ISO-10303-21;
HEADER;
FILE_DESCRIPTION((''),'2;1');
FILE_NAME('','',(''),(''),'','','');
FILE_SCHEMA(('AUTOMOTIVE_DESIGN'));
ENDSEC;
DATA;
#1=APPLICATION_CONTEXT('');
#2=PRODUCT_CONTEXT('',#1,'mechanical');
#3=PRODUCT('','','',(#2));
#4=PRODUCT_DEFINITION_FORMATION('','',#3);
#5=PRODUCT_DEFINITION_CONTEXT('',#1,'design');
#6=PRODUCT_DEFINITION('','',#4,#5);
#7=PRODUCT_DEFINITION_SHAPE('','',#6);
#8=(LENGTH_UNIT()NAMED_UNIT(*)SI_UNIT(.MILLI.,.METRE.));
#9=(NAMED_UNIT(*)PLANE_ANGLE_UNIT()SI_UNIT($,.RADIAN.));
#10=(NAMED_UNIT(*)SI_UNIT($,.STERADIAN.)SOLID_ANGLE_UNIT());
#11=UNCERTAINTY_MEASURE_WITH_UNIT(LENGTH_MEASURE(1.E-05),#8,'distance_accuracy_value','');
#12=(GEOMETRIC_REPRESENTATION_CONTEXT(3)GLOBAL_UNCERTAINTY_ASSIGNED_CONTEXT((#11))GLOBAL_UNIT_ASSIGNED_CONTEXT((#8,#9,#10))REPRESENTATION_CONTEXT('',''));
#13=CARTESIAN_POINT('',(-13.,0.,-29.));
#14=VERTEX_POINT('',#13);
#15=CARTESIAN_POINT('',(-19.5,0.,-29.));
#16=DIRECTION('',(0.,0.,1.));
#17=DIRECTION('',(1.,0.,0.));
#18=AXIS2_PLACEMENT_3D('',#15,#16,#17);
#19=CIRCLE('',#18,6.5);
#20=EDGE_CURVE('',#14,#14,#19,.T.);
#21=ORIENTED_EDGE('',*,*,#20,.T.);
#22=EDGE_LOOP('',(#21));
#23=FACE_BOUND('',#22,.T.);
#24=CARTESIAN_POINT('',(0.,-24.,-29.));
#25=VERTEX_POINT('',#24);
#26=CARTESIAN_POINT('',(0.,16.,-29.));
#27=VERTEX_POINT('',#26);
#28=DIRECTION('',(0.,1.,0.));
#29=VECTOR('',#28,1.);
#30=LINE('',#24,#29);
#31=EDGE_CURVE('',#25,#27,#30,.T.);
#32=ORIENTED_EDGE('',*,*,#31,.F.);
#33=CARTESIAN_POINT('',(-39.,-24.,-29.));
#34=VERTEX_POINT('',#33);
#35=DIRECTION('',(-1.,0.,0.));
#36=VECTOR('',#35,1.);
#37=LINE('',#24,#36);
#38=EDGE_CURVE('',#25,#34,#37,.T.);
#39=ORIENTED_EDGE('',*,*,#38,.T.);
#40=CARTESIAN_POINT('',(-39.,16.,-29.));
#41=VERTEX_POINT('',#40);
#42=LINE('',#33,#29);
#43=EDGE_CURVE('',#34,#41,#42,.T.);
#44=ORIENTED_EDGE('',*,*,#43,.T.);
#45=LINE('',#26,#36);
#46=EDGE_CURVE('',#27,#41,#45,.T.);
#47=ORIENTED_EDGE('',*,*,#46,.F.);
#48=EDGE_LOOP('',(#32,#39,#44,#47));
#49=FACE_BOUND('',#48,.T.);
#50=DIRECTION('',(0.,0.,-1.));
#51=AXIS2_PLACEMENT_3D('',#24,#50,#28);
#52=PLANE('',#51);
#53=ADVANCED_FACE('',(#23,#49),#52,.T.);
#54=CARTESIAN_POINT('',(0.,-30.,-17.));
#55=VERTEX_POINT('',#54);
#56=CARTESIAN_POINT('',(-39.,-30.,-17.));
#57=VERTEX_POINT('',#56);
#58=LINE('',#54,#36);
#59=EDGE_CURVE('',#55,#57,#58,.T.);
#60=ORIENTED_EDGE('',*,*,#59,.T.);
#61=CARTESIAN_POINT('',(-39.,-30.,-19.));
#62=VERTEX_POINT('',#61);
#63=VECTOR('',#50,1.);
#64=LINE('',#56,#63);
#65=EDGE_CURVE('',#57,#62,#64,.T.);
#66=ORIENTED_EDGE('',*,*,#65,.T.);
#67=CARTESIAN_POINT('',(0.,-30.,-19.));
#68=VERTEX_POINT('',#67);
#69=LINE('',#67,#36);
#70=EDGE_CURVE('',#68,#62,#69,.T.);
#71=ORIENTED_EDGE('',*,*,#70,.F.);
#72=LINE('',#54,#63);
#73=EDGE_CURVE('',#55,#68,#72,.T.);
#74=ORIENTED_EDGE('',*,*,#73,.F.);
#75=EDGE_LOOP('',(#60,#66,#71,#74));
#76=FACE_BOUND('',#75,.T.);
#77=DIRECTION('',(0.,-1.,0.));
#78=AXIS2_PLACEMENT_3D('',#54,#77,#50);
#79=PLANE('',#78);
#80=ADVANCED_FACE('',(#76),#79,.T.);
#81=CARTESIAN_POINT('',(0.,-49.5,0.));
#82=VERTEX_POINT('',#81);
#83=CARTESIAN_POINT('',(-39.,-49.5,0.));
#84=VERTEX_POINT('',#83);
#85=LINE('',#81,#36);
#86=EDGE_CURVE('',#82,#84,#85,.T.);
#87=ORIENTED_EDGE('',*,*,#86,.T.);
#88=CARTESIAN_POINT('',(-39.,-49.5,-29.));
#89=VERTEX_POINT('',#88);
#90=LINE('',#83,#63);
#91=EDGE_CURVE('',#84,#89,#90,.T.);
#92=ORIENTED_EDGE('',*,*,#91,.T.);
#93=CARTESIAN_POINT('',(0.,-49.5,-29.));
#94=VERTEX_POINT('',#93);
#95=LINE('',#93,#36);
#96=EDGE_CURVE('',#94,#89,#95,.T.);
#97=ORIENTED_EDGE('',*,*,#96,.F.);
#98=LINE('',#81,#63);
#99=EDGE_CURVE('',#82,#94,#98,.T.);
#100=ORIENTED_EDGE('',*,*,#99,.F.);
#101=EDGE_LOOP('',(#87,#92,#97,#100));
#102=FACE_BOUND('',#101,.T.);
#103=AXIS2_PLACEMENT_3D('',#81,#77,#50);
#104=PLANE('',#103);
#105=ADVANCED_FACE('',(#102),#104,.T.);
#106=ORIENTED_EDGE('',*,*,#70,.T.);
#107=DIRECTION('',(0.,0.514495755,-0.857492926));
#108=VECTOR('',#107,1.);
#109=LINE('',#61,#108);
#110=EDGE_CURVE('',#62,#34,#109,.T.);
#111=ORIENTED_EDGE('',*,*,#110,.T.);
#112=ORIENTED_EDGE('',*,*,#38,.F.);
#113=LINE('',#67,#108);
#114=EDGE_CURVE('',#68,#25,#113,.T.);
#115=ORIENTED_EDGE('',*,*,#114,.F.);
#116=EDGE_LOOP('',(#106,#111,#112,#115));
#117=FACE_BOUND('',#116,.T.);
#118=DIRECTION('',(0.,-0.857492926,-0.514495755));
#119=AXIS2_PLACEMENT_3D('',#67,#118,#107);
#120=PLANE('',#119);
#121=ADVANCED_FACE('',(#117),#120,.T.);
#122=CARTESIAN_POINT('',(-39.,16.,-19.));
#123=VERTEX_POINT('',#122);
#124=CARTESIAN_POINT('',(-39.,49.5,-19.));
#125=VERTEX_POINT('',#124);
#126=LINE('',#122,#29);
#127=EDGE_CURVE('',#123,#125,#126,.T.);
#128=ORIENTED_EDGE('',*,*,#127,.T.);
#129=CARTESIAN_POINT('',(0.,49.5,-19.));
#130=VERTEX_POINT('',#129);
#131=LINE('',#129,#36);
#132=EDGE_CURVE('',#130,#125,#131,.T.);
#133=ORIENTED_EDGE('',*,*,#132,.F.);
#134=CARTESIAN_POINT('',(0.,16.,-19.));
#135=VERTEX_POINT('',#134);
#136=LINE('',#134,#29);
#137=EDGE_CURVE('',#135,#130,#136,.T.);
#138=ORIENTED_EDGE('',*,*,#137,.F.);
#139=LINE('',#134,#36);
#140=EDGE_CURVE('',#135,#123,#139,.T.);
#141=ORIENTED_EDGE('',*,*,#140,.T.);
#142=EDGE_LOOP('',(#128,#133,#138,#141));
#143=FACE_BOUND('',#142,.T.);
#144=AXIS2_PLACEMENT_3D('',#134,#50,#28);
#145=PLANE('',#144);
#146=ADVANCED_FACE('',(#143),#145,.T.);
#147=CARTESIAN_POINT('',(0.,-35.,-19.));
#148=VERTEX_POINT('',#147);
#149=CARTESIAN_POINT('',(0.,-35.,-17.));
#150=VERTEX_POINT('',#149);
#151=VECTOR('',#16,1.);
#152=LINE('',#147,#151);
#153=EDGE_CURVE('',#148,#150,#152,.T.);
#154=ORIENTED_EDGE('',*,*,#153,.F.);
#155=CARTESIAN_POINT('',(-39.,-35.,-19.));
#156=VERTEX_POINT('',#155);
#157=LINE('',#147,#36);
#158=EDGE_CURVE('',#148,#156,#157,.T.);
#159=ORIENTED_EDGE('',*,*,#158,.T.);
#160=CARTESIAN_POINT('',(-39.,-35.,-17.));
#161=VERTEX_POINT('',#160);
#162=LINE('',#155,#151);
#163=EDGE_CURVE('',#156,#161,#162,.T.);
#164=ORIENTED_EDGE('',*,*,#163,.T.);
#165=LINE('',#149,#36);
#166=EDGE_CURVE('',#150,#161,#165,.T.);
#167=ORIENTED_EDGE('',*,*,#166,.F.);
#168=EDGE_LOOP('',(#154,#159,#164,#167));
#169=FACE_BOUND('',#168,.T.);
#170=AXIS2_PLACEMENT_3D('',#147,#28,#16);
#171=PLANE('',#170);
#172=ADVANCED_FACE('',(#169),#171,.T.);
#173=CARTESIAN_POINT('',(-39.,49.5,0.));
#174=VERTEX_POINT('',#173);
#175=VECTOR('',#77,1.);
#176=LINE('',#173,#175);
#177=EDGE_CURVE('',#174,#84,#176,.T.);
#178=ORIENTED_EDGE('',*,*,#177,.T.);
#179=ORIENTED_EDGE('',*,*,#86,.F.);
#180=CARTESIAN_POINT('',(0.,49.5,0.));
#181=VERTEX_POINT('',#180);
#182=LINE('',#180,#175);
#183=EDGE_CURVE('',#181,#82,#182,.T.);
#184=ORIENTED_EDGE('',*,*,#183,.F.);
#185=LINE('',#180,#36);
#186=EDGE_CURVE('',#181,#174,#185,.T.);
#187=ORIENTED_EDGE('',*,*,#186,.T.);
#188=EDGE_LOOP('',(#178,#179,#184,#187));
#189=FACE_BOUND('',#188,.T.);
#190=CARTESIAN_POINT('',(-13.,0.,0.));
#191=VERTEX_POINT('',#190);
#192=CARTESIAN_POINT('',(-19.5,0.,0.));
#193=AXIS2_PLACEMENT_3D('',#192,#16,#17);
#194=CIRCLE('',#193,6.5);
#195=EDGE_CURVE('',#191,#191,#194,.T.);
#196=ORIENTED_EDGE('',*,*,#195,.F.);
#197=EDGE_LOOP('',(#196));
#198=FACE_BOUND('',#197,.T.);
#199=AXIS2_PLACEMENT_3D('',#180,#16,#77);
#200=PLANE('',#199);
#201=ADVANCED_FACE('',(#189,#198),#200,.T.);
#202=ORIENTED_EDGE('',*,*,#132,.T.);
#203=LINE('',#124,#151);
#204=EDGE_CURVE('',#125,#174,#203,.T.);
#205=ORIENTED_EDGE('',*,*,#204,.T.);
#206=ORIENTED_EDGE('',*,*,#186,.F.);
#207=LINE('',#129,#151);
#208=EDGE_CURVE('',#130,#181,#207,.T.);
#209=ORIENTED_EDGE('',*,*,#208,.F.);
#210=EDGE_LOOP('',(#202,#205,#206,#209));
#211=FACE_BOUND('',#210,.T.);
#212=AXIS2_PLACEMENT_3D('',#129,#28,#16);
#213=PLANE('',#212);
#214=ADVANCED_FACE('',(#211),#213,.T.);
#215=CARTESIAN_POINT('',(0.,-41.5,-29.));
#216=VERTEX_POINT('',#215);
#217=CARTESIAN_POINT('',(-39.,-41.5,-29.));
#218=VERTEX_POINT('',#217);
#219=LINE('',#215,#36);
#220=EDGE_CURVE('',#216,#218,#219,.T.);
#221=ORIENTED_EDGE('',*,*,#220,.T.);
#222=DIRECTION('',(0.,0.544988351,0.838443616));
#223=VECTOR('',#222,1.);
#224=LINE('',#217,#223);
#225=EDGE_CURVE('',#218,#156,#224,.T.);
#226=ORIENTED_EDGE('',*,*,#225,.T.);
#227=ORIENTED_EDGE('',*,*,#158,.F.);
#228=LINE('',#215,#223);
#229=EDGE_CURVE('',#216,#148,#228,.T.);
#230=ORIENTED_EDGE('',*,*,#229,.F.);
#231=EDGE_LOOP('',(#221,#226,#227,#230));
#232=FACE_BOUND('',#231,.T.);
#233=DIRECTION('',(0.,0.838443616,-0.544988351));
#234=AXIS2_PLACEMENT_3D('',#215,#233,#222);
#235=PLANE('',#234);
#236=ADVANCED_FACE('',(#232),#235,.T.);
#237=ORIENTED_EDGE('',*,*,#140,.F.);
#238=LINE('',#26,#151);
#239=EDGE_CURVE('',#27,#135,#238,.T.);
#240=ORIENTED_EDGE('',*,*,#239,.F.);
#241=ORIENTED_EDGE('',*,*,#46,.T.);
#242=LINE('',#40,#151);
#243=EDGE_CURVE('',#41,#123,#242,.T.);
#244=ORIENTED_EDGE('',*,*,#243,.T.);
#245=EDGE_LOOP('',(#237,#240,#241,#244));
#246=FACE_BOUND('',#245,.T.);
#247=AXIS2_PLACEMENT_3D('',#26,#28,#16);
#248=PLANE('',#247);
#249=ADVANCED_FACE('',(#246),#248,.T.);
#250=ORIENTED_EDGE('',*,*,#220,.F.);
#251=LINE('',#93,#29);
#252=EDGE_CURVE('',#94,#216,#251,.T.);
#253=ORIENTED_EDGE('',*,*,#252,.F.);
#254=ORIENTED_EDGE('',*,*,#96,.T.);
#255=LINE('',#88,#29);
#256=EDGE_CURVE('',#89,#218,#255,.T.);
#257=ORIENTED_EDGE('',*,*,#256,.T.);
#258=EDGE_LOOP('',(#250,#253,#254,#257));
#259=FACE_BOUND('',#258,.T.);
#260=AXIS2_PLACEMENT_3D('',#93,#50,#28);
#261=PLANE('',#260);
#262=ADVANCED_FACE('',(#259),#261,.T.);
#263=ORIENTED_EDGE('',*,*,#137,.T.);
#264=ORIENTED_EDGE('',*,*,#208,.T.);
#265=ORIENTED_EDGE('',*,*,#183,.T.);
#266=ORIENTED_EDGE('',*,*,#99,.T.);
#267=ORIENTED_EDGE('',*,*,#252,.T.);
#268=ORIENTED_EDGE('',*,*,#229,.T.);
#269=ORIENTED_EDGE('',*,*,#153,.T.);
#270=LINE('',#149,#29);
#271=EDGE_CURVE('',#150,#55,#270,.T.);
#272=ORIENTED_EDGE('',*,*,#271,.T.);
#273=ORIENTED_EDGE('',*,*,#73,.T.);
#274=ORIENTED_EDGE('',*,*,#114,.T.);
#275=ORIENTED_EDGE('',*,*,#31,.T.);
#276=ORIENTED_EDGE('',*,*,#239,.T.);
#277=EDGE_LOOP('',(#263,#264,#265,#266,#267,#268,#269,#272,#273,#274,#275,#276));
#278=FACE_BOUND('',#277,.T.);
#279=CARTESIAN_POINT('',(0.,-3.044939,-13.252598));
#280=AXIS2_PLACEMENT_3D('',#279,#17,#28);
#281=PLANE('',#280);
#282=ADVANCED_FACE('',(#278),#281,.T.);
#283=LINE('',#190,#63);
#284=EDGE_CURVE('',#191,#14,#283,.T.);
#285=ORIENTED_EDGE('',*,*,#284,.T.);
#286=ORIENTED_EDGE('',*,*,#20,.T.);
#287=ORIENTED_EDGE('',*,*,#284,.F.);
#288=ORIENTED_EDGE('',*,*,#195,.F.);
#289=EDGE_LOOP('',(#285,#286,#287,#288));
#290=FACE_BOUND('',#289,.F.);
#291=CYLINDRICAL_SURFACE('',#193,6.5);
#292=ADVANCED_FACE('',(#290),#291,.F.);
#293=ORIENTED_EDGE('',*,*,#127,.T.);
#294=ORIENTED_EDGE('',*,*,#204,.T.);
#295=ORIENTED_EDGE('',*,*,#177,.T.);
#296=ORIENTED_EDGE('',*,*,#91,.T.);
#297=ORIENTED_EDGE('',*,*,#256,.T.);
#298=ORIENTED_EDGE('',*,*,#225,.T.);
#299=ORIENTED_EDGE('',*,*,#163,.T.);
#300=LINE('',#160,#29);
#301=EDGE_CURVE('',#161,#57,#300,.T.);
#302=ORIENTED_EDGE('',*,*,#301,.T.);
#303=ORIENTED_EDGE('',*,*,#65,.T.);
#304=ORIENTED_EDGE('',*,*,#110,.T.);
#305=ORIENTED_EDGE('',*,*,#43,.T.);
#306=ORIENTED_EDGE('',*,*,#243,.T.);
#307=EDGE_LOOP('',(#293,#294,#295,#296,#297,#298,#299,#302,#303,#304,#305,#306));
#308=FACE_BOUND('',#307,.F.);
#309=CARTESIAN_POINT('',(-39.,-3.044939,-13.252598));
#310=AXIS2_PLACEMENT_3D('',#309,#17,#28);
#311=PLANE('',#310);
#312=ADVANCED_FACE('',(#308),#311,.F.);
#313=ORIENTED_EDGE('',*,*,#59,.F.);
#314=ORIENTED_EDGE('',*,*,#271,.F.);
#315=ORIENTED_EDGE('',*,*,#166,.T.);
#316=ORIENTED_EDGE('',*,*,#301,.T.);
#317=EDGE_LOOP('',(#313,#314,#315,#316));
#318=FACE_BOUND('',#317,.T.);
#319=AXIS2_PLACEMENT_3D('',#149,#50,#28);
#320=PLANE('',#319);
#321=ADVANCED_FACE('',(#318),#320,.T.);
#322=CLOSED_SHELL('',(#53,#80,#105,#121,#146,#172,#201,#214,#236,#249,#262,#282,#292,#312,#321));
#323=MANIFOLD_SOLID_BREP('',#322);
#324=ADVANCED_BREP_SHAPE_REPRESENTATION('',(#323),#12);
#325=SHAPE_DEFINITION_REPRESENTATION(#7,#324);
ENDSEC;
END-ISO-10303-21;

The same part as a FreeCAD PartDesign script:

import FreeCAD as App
import Part
import Sketcher

V = App.Vector
Q = App.Units.Quantity

doc = App.newDocument("Part")
body = doc.addObject("PartDesign::Body", "Body")

# Sketch on YZ plane
sketch1 = body.newObject("Sketcher::SketchObject", "Sketch")
sketch1.AttachmentSupport = (doc.getObject("YZ_Plane"), [""])
sketch1.MapMode = "FlatFace"
sketch1.addGeometry([
    Part.LineSegment(V(49.5, 0, 0), V(-49.5, 0, 0)),  # 0
    Part.LineSegment(V(-49.5, 0, 0), V(-49.5, -29, 0)),  # 1
    Part.LineSegment(V(-49.5, -29, 0), V(-41.5, -29, 0)),  # 2
    Part.LineSegment(V(-41.5, -29, 0), V(-35, -19, 0)),  # 3
    Part.LineSegment(V(-35, -19, 0), V(-35, -17, 0)),  # 4
    Part.LineSegment(V(-35, -17, 0), V(-30, -17, 0)),  # 5
    Part.LineSegment(V(-30, -17, 0), V(-30, -19, 0)),  # 6
    Part.LineSegment(V(-30, -19, 0), V(-24, -29, 0)),  # 7
    Part.LineSegment(V(-24, -29, 0), V(16, -29, 0)),  # 8
    Part.LineSegment(V(16, -29, 0), V(16, -19, 0)),  # 9
    Part.LineSegment(V(16, -19, 0), V(49.5, -19, 0)),  # 10
    Part.LineSegment(V(49.5, -19, 0), V(49.5, 0, 0)),  # 11
], False)
sketch1.addConstraint([
    Sketcher.Constraint("Coincident", 0, 2, 1, 1),
    Sketcher.Constraint("Coincident", 1, 2, 2, 1),
    Sketcher.Constraint("Coincident", 2, 2, 3, 1),
    Sketcher.Constraint("Coincident", 3, 2, 4, 1),
    Sketcher.Constraint("Coincident", 4, 2, 5, 1),
    Sketcher.Constraint("Coincident", 5, 2, 6, 1),
    Sketcher.Constraint("Coincident", 6, 2, 7, 1),
    Sketcher.Constraint("Coincident", 7, 2, 8, 1),
    Sketcher.Constraint("Coincident", 8, 2, 9, 1),
    Sketcher.Constraint("Coincident", 9, 2, 10, 1),
    Sketcher.Constraint("Coincident", 10, 2, 11, 1),
    Sketcher.Constraint("Coincident", 11, 2, 0, 1),
    Sketcher.Constraint("Horizontal", 0),
    Sketcher.Constraint("Vertical", 1),
    Sketcher.Constraint("Horizontal", 2),
    Sketcher.Constraint("Vertical", 4),
    Sketcher.Constraint("Horizontal", 5),
    Sketcher.Constraint("Vertical", 6),
    Sketcher.Constraint("Horizontal", 8),
    Sketcher.Constraint("Vertical", 9),
    Sketcher.Constraint("Horizontal", 10),
    Sketcher.Constraint("Vertical", 11),
    Sketcher.Constraint("Symmetric", 0, 2, 11, 2, -1, 1),
    Sketcher.Constraint("Horizontal", 3, 2, 6, 2),
    Sketcher.Constraint("Horizontal", 2, 2, 7, 2),
    Sketcher.Constraint("Horizontal", 6, 2, 9, 2),
    Sketcher.Constraint("DistanceX", 0, 2, 0, 1, Q("99 mm")),
    Sketcher.Constraint("DistanceX", 2, 1, 2, 2, Q("8 mm")),
    Sketcher.Constraint("DistanceX", 5, 1, 5, 2, Q("5 mm")),
    Sketcher.Constraint("DistanceX", 8, 1, 8, 2, Q("40 mm")),
    Sketcher.Constraint("DistanceY", 1, 2, 1, 1, Q("29 mm")),
    Sketcher.Constraint("DistanceY", 4, 1, 4, 2, Q("2 mm")),
    Sketcher.Constraint("DistanceY", 9, 1, 9, 2, Q("10 mm")),
    Sketcher.Constraint("DistanceX", 10, 1, 10, 2, Q("33.5 mm")),
    Sketcher.Constraint("DistanceX", 3, 2, -1, 1, Q("35 mm")),
])
pad1 = body.newObject("PartDesign::Pad", "Pad")
pad1.Profile = sketch1
pad1.Length = 39
pad1.Reversed = True

# Sketch on XY plane
sketch2 = body.newObject("Sketcher::SketchObject", "Sketch001")
sketch2.AttachmentSupport = (doc.getObject("XY_Plane"), [""])
sketch2.MapMode = "FlatFace"
sketch2.addGeometry(Part.Circle(V(-20, 0, 0), V(0, 0, 1), 6), False)
sketch2.addConstraint([
    Sketcher.Constraint("PointOnObject", 0, 3, -1),
    Sketcher.Constraint("Diameter", 0, Q("13 mm")),
    Sketcher.Constraint("DistanceX", 0, 3, -1, 1, Q("19.5 mm")),
])
pocket1 = body.newObject("PartDesign::Pocket", "Pocket")
pocket1.Profile = sketch2
pocket1.Length = 35

doc.recompute()
